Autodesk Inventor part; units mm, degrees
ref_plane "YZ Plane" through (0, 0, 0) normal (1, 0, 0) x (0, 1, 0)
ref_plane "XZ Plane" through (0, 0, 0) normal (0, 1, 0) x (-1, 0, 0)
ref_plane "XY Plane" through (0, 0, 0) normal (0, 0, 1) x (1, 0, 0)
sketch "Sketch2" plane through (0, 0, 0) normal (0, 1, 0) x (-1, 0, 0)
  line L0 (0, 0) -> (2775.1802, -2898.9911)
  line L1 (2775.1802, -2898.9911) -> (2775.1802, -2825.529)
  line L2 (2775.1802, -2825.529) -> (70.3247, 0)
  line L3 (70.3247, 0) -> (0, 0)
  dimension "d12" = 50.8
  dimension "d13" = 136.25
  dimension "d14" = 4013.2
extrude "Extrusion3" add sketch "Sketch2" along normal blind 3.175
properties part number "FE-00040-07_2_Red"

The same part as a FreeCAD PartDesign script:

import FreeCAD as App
import Part
import Sketcher
Q = App.Units.Quantity


def add_polygon(sketch, points):
    """Adds a closed chain of lines whose ends are joined by coincident constraints."""
    first, n = sketch.GeometryCount, len(points)
    for a, b in zip(points, points[1:] + points[:1]):
        sketch.addGeometry(Part.LineSegment(App.Vector(*a, 0), App.Vector(*b, 0)), False)
    for i in range(n):
        sketch.addConstraint(Sketcher.Constraint("Coincident", first + i, 2, first + (i + 1) % n, 1))

doc = App.newDocument("Part")
body = doc.addObject("PartDesign::Body", "Body")

# Sketch on XZ plane
sketch1 = body.newObject("Sketcher::SketchObject", "Sketch")
sketch1.AttachmentSupport = (doc.getObject("XZ_Plane"), [""])
sketch1.MapMode = "FlatFace"
add_polygon(sketch1, [(-70.3247, 0), (0, 0), (-2775.1802, -2898.9911), (-2775.1802, -2825.529)])  # lines 0-3
sketch1.addConstraint([
    Sketcher.Constraint("Horizontal", 0),
    Sketcher.Constraint("Vertical", 2),
    Sketcher.Constraint("Coincident", 0, 2, -1, 1),
    Sketcher.Constraint("Parallel", 1, 3),
    Sketcher.Constraint("Distance", 1, Q("158 in")),
    Sketcher.Constraint("Angle", 1, Q("-133.75 deg")),
    Sketcher.Constraint("DistanceX", 0, 1, 0, 2, Q("2.7687 in")),
])
pad1 = body.newObject("PartDesign::Pad", "Pad")
pad1.Profile = sketch1
pad1.Length = Q("0.125 in")
pad1.Reversed = True

doc.recompute()
